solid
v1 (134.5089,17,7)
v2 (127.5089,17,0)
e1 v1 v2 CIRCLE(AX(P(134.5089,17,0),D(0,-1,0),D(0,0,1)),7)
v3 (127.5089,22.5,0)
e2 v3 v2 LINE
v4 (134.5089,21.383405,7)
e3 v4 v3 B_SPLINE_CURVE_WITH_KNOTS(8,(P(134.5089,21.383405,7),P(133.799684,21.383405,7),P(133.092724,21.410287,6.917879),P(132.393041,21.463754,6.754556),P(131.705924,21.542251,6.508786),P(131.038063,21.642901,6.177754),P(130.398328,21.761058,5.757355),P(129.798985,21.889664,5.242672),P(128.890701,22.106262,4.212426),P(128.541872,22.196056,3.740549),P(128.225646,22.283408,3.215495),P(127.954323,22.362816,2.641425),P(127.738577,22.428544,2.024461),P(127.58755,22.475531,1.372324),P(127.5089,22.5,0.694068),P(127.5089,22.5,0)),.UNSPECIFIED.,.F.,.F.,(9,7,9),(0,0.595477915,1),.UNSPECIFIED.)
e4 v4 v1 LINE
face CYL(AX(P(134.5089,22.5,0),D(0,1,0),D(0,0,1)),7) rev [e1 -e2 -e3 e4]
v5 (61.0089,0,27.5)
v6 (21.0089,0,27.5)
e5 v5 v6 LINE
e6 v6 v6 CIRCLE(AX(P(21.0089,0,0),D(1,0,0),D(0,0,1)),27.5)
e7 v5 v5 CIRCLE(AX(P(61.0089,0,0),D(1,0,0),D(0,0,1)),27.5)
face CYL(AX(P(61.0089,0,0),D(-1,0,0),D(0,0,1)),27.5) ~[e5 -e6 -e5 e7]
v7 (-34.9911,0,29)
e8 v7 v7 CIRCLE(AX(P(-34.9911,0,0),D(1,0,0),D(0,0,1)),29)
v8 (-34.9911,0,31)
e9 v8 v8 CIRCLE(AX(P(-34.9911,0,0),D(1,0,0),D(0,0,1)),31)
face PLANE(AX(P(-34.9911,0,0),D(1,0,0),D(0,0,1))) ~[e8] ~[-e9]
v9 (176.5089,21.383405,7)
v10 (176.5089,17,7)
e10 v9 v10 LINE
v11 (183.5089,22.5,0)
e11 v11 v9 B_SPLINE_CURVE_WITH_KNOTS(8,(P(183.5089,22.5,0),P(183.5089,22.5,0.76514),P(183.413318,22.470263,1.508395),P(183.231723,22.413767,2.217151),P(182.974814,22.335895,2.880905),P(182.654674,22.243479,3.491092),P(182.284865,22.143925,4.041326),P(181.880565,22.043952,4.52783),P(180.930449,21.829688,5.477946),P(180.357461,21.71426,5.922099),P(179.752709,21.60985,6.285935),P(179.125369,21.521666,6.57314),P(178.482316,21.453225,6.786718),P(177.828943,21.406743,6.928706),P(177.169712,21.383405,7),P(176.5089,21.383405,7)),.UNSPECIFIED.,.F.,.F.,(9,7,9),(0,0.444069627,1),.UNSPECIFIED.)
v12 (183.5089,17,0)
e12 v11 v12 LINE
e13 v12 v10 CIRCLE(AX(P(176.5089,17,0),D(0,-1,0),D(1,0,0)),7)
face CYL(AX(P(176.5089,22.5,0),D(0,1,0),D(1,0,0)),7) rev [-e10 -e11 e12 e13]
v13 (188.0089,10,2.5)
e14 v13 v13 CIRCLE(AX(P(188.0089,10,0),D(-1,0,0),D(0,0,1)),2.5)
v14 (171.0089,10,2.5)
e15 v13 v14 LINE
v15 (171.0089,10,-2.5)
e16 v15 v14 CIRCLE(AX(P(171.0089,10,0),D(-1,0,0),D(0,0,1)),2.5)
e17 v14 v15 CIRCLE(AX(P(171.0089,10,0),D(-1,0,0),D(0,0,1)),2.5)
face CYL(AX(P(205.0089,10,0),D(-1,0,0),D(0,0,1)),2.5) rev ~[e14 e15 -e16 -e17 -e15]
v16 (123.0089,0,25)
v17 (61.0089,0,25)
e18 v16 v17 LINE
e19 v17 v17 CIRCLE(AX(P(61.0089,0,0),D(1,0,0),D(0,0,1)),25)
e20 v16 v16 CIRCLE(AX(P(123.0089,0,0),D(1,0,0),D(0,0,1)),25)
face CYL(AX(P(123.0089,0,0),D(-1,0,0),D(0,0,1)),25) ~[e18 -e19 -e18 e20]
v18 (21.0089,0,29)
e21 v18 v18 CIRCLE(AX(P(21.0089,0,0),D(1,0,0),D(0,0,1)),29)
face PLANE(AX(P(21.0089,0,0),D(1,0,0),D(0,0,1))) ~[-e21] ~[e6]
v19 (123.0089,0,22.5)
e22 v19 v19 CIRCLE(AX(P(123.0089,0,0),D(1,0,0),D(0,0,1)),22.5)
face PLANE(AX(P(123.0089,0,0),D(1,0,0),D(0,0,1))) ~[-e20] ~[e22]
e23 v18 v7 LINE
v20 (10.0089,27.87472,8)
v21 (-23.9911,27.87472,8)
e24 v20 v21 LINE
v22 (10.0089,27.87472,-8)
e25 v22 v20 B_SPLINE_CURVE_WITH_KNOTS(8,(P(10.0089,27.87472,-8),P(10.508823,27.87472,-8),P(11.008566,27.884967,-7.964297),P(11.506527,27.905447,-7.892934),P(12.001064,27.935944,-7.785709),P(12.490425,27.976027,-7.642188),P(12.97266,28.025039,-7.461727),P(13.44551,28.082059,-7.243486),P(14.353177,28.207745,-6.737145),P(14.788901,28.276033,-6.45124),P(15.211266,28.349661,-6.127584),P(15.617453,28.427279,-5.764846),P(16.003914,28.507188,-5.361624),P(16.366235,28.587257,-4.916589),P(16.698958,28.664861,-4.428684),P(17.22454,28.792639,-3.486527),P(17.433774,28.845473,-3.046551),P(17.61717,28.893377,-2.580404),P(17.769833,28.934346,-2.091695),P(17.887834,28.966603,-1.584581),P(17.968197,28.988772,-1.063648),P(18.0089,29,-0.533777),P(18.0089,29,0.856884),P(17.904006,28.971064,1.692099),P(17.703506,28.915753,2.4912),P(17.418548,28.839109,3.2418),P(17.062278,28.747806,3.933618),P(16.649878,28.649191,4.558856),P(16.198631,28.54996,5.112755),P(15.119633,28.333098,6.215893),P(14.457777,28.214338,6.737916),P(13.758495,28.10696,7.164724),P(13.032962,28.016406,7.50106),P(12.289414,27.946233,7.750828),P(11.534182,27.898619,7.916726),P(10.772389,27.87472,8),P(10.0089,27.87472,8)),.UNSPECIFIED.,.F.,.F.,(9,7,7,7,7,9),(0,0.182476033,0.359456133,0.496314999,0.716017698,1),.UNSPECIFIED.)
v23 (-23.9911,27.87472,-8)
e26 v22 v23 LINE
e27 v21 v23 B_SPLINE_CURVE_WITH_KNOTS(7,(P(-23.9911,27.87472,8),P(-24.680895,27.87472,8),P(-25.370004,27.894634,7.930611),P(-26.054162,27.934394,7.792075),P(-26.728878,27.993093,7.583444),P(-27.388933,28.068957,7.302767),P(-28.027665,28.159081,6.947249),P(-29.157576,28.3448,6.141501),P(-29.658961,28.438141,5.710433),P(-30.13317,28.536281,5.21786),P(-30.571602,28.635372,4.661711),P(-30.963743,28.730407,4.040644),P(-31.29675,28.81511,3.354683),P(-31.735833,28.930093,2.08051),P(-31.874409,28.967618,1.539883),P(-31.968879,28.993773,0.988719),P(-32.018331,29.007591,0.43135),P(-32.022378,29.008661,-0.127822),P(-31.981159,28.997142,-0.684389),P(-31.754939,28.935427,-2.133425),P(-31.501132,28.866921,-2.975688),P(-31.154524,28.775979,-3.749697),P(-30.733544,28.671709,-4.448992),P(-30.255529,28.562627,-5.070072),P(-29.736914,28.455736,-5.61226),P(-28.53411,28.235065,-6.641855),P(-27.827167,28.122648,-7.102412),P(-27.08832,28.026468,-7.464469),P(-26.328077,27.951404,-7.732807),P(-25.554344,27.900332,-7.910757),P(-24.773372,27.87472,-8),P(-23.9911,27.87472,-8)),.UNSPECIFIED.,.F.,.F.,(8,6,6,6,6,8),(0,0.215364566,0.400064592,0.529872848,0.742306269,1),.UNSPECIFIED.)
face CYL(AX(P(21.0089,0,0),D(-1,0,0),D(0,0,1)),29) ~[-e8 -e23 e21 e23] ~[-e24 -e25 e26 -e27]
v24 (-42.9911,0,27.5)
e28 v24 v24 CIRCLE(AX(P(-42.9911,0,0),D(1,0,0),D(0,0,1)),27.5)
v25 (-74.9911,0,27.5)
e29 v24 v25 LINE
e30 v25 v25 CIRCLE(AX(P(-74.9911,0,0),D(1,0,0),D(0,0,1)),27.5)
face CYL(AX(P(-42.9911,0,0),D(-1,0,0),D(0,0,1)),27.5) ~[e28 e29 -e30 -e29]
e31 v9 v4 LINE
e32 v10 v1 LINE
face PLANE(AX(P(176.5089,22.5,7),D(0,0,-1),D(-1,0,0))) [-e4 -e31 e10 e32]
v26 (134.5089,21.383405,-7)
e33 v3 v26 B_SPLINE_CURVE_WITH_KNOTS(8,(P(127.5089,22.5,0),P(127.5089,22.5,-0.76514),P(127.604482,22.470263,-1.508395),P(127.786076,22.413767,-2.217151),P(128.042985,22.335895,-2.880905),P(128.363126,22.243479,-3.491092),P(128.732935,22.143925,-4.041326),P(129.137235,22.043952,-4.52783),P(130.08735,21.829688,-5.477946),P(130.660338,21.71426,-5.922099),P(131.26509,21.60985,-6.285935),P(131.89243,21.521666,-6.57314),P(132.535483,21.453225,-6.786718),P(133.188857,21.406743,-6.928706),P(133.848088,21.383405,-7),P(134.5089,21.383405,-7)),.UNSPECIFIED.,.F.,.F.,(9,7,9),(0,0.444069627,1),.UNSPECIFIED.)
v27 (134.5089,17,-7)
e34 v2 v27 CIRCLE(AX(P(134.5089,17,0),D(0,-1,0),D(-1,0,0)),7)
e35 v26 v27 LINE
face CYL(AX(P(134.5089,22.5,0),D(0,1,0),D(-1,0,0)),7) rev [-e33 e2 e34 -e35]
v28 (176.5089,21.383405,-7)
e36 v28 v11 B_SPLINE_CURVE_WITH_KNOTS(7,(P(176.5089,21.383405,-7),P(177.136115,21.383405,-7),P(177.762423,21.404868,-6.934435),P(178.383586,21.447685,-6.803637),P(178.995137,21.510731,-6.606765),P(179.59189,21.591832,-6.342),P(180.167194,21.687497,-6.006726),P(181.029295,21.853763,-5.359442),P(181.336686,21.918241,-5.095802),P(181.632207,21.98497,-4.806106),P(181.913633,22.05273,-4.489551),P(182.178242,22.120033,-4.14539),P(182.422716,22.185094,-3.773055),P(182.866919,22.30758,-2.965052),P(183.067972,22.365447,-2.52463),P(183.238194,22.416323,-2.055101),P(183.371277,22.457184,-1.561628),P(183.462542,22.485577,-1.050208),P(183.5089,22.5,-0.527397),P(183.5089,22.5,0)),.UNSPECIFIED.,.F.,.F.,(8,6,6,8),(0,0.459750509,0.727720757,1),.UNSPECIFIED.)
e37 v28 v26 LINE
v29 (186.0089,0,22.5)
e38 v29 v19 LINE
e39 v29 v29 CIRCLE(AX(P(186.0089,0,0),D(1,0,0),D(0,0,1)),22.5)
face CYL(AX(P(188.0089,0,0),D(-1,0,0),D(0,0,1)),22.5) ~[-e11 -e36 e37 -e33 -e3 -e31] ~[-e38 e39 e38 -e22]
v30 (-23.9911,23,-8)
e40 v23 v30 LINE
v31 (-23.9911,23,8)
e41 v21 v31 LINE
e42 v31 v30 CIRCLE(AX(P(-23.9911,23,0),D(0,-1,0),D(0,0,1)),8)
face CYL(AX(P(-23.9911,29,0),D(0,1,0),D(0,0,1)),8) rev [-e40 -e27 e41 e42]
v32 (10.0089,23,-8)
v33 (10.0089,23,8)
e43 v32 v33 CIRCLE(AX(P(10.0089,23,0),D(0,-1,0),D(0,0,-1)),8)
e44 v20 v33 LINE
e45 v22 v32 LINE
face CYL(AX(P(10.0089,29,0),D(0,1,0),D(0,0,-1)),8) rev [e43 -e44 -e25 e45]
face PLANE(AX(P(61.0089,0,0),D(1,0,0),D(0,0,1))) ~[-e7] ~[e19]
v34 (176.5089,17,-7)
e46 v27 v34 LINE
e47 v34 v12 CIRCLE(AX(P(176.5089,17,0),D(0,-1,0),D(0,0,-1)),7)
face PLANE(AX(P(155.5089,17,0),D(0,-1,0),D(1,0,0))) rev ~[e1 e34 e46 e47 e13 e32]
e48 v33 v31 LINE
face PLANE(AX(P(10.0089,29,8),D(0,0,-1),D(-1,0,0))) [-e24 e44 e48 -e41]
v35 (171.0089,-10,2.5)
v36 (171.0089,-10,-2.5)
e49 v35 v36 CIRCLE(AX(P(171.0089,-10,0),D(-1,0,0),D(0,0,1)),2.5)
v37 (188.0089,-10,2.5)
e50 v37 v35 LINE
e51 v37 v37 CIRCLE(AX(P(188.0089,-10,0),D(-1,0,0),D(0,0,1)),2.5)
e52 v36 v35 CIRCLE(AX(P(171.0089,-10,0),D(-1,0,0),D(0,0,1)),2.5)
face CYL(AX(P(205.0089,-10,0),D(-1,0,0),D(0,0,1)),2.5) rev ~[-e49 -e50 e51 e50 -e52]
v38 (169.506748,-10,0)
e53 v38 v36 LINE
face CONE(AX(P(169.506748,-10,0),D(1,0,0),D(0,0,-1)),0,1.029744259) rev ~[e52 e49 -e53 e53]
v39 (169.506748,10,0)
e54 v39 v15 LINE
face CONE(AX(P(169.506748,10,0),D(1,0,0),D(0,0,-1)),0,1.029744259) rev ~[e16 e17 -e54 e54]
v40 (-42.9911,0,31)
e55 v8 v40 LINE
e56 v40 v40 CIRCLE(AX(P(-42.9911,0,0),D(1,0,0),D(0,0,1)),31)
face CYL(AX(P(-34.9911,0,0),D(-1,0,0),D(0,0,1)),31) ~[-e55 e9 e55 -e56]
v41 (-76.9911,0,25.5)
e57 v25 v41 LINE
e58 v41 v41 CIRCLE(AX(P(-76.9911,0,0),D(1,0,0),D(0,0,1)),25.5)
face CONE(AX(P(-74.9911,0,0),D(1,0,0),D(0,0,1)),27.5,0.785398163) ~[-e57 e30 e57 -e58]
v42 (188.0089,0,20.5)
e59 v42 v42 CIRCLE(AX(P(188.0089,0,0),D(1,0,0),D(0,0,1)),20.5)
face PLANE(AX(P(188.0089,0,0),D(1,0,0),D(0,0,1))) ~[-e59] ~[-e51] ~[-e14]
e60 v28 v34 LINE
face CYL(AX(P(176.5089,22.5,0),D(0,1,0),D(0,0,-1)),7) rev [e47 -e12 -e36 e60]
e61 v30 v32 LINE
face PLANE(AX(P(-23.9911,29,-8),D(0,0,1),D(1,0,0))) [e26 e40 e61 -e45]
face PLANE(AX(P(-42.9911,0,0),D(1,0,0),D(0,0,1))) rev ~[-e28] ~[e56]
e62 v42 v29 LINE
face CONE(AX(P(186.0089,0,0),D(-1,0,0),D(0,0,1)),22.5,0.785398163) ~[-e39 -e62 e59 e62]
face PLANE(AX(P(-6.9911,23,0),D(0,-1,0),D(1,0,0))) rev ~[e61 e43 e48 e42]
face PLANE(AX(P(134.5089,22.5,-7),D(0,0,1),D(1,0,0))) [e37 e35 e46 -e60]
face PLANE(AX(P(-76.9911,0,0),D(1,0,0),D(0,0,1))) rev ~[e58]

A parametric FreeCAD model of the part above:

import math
import FreeCAD as App
import Part
import Sketcher
from FreeCAD import Vector


def edges_at(feature, points):
    """Names of the edges that pass closest to the given points."""
    edges = feature.Shape.Edges
    near = lambda p: min(range(len(edges)), key=lambda i: edges[i].distToShape(Part.Vertex(*p))[0])
    return sorted({f"Edge{near(p) + 1}" for p in points})


def add_polygon(sketch, points):
    """Adds a closed chain of lines whose ends are joined by coincident constraints."""
    first, n = sketch.GeometryCount, len(points)
    for a, b in zip(points, points[1:] + points[:1]):
        sketch.addGeometry(Part.LineSegment(App.Vector(*a, 0), App.Vector(*b, 0)), False)
    for i in range(n):
        sketch.addConstraint(Sketcher.Constraint("Coincident", first + i, 2, first + (i + 1) % n, 1))

doc = App.newDocument("Part")
body = doc.addObject("PartDesign::Body", "Body")

sketch1 = doc.addObject("Sketcher::SketchObject", "Sketch")
body.addObject(sketch1)
sketch1.AttachmentSupport = (doc.XY_Plane, [""])
sketch1.MapMode = "FlatFace"
add_polygon(sketch1, [(-77, 0), (188, 0), (188, 22.5), (123, 22.5), (123, 25), (61, 25), (61, 27.5), (21, 27.5), (21, 29), (-35, 29), (-35, 31), (-43, 31), (-43, 27.5), (-77, 27.5)])
sketch1.addConstraint(Sketcher.Constraint("Horizontal", 0))
sketch1.addConstraint(Sketcher.Constraint("Vertical", 1))
sketch1.addConstraint(Sketcher.Constraint("Horizontal", 2))
sketch1.addConstraint(Sketcher.Constraint("Vertical", 3))
sketch1.addConstraint(Sketcher.Constraint("Horizontal", 4))
sketch1.addConstraint(Sketcher.Constraint("Vertical", 5))
sketch1.addConstraint(Sketcher.Constraint("Horizontal", 6))
sketch1.addConstraint(Sketcher.Constraint("Vertical", 7))
sketch1.addConstraint(Sketcher.Constraint("Horizontal", 8))
sketch1.addConstraint(Sketcher.Constraint("Vertical", 9))
sketch1.addConstraint(Sketcher.Constraint("Horizontal", 10))
sketch1.addConstraint(Sketcher.Constraint("Vertical", 11))
sketch1.addConstraint(Sketcher.Constraint("Horizontal", 12))
sketch1.addConstraint(Sketcher.Constraint("Vertical", 13))
sketch1.addConstraint(Sketcher.Constraint("PointOnObject", 0, 2, -1))
sketch1.addConstraint(Sketcher.Constraint("Horizontal", 6, 2, 11, 2))
sketch1.addConstraint(Sketcher.Constraint("Equal", 3, 5))
sketch1.addConstraint(Sketcher.Constraint("DistanceX", 0, 1, 0, 2, 265.0))
sketch1.addConstraint(Sketcher.Constraint("DistanceX", 2, 2, 2, 1, 65.0))
sketch1.addConstraint(Sketcher.Constraint("DistanceX", 4, 2, 4, 1, 62.0))
sketch1.addConstraint(Sketcher.Constraint("DistanceX", 6, 2, 6, 1, 40.0))
sketch1.addConstraint(Sketcher.Constraint("DistanceX", 8, 2, 8, 1, 56.0))
sketch1.addConstraint(Sketcher.Constraint("DistanceX", 10, 2, 10, 1, 8.0))
sketch1.addConstraint(Sketcher.Constraint("DistanceY", 9, 1, 9, 2, 2.0))
sketch1.addConstraint(Sketcher.Constraint("DistanceY", 1, 1, 1, 2, 22.5))
sketch1.addConstraint(Sketcher.Constraint("DistanceY", 3, 1, 3, 2, 2.5))
sketch1.addConstraint(Sketcher.Constraint("DistanceY", 7, 1, 7, 2, 1.5))
sketch1.addConstraint(Sketcher.Constraint("DistanceX", -1, 1, 0, 2, 188.0089))
revolution = doc.addObject("PartDesign::Revolution", "Revolution")
body.addObject(revolution)
revolution.Profile = sketch1
revolution.ReferenceAxis = (sketch1, ["H_Axis"])
revolution.Angle = 360

sketch2 = doc.addObject("Sketcher::SketchObject", "Sketch001")
body.addObject(sketch2)
sketch2.AttachmentSupport = (doc.XZ_Plane, [""])
sketch2.MapMode = "FlatFace"
sketch2.AttachmentOffset = App.Placement(Vector(0, 0, -29), App.Rotation())
sketch2.addGeometry(Part.LineSegment(Vector(10, -8, 0), Vector(-24, -8, 0)), False)
sketch2.addGeometry(Part.ArcOfCircle(Part.Circle(Vector(-24, 0, 0), Vector(0, 0, 1), 8), math.radians(90), math.radians(270)), False)
sketch2.addGeometry(Part.LineSegment(Vector(-24, 8, 0), Vector(10, 8, 0)), False)
sketch2.addGeometry(Part.ArcOfCircle(Part.Circle(Vector(10, 0, 0), Vector(0, 0, 1), 8), math.radians(-90), math.radians(90)), False)
sketch2.addConstraint(Sketcher.Constraint("Tangent", 0, 2, 1, 2))
sketch2.addConstraint(Sketcher.Constraint("Tangent", 1, 1, 2, 1))
sketch2.addConstraint(Sketcher.Constraint("Tangent", 2, 2, 3, 2))
sketch2.addConstraint(Sketcher.Constraint("Tangent", 3, 1, 0, 1))
sketch2.addConstraint(Sketcher.Constraint("Horizontal", 0))
sketch2.addConstraint(Sketcher.Constraint("Horizontal", 2))
sketch2.addConstraint(Sketcher.Constraint("PointOnObject", 1, 3, -1))
sketch2.addConstraint(Sketcher.Constraint("Radius", 1, 8.0))
sketch2.addConstraint(Sketcher.Constraint("DistanceX", 0, 2, 0, 1, 34.0))
sketch2.addConstraint(Sketcher.Constraint("DistanceX", 1, 3, -1, 1, 23.9911))
pocket1 = doc.addObject("PartDesign::Pocket", "Pocket")
body.addObject(pocket1)
pocket1.Profile = sketch2
pocket1.Length = 6
pocket1.Reversed = True

sketch3 = doc.addObject("Sketcher::SketchObject", "Sketch002")
body.addObject(sketch3)
sketch3.AttachmentSupport = (doc.XZ_Plane, [""])
sketch3.MapMode = "FlatFace"
sketch3.AttachmentOffset = App.Placement(Vector(0, 0, -22.5), App.Rotation())
sketch3.addGeometry(Part.LineSegment(Vector(135, 7, 0), Vector(177, 7, 0)), False)
sketch3.addGeometry(Part.ArcOfCircle(Part.Circle(Vector(177, 0, 0), Vector(0, 0, 1), 7), math.radians(0), math.radians(90)), False)
sketch3.addGeometry(Part.ArcOfCircle(Part.Circle(Vector(177, 0, 0), Vector(0, 0, 1), 7), math.radians(-90), math.radians(0)), False)
sketch3.addGeometry(Part.LineSegment(Vector(177, -7, 0), Vector(135, -7, 0)), False)
sketch3.addGeometry(Part.ArcOfCircle(Part.Circle(Vector(135, 0, 0), Vector(0, 0, 1), 7), math.radians(-180), math.radians(-90)), False)
sketch3.addGeometry(Part.ArcOfCircle(Part.Circle(Vector(135, 0, 0), Vector(0, 0, 1), 7), math.radians(90), math.radians(180)), False)
sketch3.addConstraint(Sketcher.Constraint("Tangent", 0, 2, 1, 2))
sketch3.addConstraint(Sketcher.Constraint("Tangent", 1, 1, 2, 2))
sketch3.addConstraint(Sketcher.Constraint("Tangent", 2, 1, 3, 1))
sketch3.addConstraint(Sketcher.Constraint("Tangent", 3, 2, 4, 2))
sketch3.addConstraint(Sketcher.Constraint("Tangent", 4, 1, 5, 2))
sketch3.addConstraint(Sketcher.Constraint("Tangent", 5, 1, 0, 1))
sketch3.addConstraint(Sketcher.Constraint("Horizontal", 0))
sketch3.addConstraint(Sketcher.Constraint("Horizontal", 3))
sketch3.addConstraint(Sketcher.Constraint("Equal", 1, 2))
sketch3.addConstraint(Sketcher.Constraint("Equal", 2, 4))
sketch3.addConstraint(Sketcher.Constraint("PointOnObject", 1, 3, -1))
sketch3.addConstraint(Sketcher.Constraint("PointOnObject", 1, 1, -1))
sketch3.addConstraint(Sketcher.Constraint("PointOnObject", 4, 1, -1))
sketch3.addConstraint(Sketcher.Constraint("Radius", 1, 7.0))
sketch3.addConstraint(Sketcher.Constraint("DistanceX", 0, 1, 0, 2, 42.0))
sketch3.addConstraint(Sketcher.Constraint("DistanceX", -1, 1, 1, 3, 176.5089))
pocket2 = doc.addObject("PartDesign::Pocket", "Pocket001")
body.addObject(pocket2)
pocket2.Profile = sketch3
pocket2.Length = 5.5
pocket2.Reversed = True
doc.recompute()

chamfer = doc.addObject("PartDesign::Chamfer", "Chamfer")
body.addObject(chamfer)
chamfer.Base = (pocket2, edges_at(pocket2, [(188.009, 0, -22.5), (-76.991, 0, -27.5)]))
chamfer.Size = 2

sketch4 = doc.addObject("Sketcher::SketchObject", "Sketch003")
body.addObject(sketch4)
sketch4.AttachmentSupport = (doc.YZ_Plane, [""])
sketch4.MapMode = "FlatFace"
sketch4.AttachmentOffset = App.Placement(Vector(0, 0, 188.0089), App.Rotation())
sketch4.addGeometry(Part.Circle(Vector(10, 0, 0), Vector(0, 0, 1), 2.5), False)
sketch4.addGeometry(Part.Circle(Vector(-10, 0, 0), Vector(0, 0, 1), 2.5), False)
sketch4.addConstraint(Sketcher.Constraint("Equal", 0, 1))
sketch4.addConstraint(Sketcher.Constraint("Symmetric", 0, 3, 1, 3, -1, 1))
sketch4.addConstraint(Sketcher.Constraint("PointOnObject", 0, 3, -1))
sketch4.addConstraint(Sketcher.Constraint("Diameter", 0, 5.0))
sketch4.addConstraint(Sketcher.Constraint("DistanceX", -1, 1, 0, 3, 10.0))
doc.recompute()
hole = doc.addObject("PartDesign::Hole", "Hole")
body.addObject(hole)
hole.Profile = sketch4
hole.ThreadType = "None"
hole.Diameter = 5
hole.DepthType = "Dimension"
hole.Depth = 17
hole.DrillPoint = "Angled"
hole.DrillPointAngle = 118

doc.recompute()
